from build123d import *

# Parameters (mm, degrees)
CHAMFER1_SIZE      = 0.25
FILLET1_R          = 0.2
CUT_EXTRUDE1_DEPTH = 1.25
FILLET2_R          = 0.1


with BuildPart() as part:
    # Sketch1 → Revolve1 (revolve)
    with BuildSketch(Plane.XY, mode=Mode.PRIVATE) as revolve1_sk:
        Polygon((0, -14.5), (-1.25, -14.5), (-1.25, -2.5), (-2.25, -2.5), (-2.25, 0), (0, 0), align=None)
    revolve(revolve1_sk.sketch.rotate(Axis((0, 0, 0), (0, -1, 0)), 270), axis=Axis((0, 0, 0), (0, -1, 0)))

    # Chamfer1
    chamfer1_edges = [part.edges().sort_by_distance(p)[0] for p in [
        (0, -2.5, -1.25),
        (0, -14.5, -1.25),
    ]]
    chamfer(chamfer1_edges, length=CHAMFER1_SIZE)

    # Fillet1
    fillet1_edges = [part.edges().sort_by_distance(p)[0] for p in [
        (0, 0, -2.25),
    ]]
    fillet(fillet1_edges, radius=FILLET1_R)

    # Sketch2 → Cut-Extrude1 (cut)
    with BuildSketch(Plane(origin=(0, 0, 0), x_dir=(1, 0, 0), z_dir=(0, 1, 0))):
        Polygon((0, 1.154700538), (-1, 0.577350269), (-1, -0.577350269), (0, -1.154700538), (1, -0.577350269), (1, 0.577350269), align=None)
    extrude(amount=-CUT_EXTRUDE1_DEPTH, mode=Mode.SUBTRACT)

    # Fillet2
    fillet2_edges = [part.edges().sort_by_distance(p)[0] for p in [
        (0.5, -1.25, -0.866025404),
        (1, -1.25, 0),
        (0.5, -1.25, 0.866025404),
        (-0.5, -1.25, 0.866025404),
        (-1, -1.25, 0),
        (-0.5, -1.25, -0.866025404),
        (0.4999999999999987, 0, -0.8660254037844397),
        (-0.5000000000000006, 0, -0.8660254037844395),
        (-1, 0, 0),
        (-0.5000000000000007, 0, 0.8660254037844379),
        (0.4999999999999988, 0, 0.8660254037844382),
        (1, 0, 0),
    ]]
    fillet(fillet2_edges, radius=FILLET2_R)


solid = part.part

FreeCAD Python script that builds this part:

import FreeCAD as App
import Part
import Sketcher
from FreeCAD import Vector
Q = App.Units.Quantity


def edges_at(feature, points):
    """Names of the edges that pass closest to the given points."""
    edges = feature.Shape.Edges
    near = lambda p: min(range(len(edges)), key=lambda i: edges[i].distToShape(Part.Vertex(*p))[0])
    return sorted({f"Edge{near(p) + 1}" for p in points})


def add_polygon(sketch, points):
    """Adds a closed chain of lines whose ends are joined by coincident constraints."""
    first, n = sketch.GeometryCount, len(points)
    for a, b in zip(points, points[1:] + points[:1]):
        sketch.addGeometry(Part.LineSegment(App.Vector(*a, 0), App.Vector(*b, 0)), False)
    for i in range(n):
        sketch.addConstraint(Sketcher.Constraint("Coincident", first + i, 2, first + (i + 1) % n, 1))

doc = App.newDocument("Part")
body = doc.addObject("PartDesign::Body", "Body")

# Sketch on XY plane
sketch1 = doc.addObject("Sketcher::SketchObject", "Sketch")
body.addObject(sketch1)
sketch1.AttachmentSupport = (doc.XY_Plane, [""])
sketch1.MapMode = "FlatFace"
add_polygon(sketch1, [(-1.2, -14.5), (0, -14.5), (0, 0), (-2.2, 0), (-2.2, -2.5), (-1.2, -2.5)])  # lines 0-5
sketch1.addConstraint(Sketcher.Constraint("Horizontal", 0))
sketch1.addConstraint(Sketcher.Constraint("Vertical", 1))
sketch1.addConstraint(Sketcher.Constraint("Horizontal", 2))
sketch1.addConstraint(Sketcher.Constraint("Vertical", 3))
sketch1.addConstraint(Sketcher.Constraint("Horizontal", 4))
sketch1.addConstraint(Sketcher.Constraint("Vertical", 5))
sketch1.addConstraint(Sketcher.Constraint("Coincident", 1, 2, -1, 1))
sketch1.addConstraint(Sketcher.Constraint("DistanceX", 4, 1, 4, 2, 1.0))
sketch1.addConstraint(Sketcher.Constraint("DistanceY", 5, 2, 5, 1, 12.0))
sketch1.addConstraint(Sketcher.Constraint("DistanceY", 1, 1, 1, 2, 14.5))
sketch1.addConstraint(Sketcher.Constraint("DistanceX", 0, 1, 0, 2, 1.25))
revolution = doc.addObject("PartDesign::Revolution", "Revolution")
body.addObject(revolution)
revolution.Profile = sketch1
revolution.ReferenceAxis = (sketch1, ["V_Axis"])
revolution.Angle = 360
doc.recompute()

chamfer = doc.addObject("PartDesign::Chamfer", "Chamfer")
body.addObject(chamfer)
chamfer.Base = (revolution, edges_at(revolution, [(0, -2.5, -1.25), (0, -14.5, -1.25)]))
chamfer.Size = 0.25
doc.recompute()

fillet = doc.addObject("PartDesign::Fillet", "Fillet")
body.addObject(fillet)
fillet.Base = (chamfer, edges_at(chamfer, [(0, 0, -2.25)]))
fillet.Radius = 0.2

# Sketch on XZ plane
sketch2 = doc.addObject("Sketcher::SketchObject", "Sketch001")
body.addObject(sketch2)
sketch2.AttachmentSupport = (doc.XZ_Plane, [""])
sketch2.MapMode = "FlatFace"
add_polygon(sketch2, [(0, -1.2), (-1, -0.6), (-1, 0.6), (0, 1.2), (1, 0.6), (1, -0.6)])  # lines 0-5
sketch2.addConstraint(Sketcher.Constraint("Vertical", 1))
sketch2.addConstraint(Sketcher.Constraint("Vertical", 4))
sketch2.addConstraint(Sketcher.Constraint("Symmetric", 0, 2, 3, 2, -1, 1))
sketch2.addConstraint(Sketcher.Constraint("Symmetric", 2, 2, 5, 2, -1, 1))
sketch2.addConstraint(Sketcher.Constraint("PointOnObject", 2, 2, -2))
sketch2.addConstraint(Sketcher.Constraint("Parallel", 2, 5))
sketch2.addConstraint(Sketcher.Constraint("Horizontal", 1, 2, 3, 2))
sketch2.addConstraint(Sketcher.Constraint("Angle", 0, Q("150 deg")))
sketch2.addConstraint(Sketcher.Constraint("DistanceX", 0, 2, -1, 1, 1.0))
sketch2.addConstraint(Sketcher.Constraint("DistanceY", 1, 1, 1, 2, 1.154701))
pocket1 = doc.addObject("PartDesign::Pocket", "Pocket")
body.addObject(pocket1)
pocket1.Profile = sketch2
pocket1.Length = 1.25
pocket1.Reversed = True
doc.recompute()

fillet2 = doc.addObject("PartDesign::Fillet", "Fillet001")
body.addObject(fillet2)
fillet2.Base = (pocket1, edges_at(pocket1, [
    (0.5, -1.25, -0.866),
    (1, -1.25, 0),
    (0.5, -1.25, 0.866),
    (-0.5, -1.25, 0.866),
    (-1, -1.25, 0),
    (-0.5, -1.25, -0.866),
    (0.5, 0, -0.866),
    (-0.5, 0, -0.866),
    (-1, 0, 0),
    (-0.5, 0, 0.866),
    (0.5, 0, 0.866),
    (1, 0, 0),
]))
fillet2.Radius = 0.1

doc.recompute()
